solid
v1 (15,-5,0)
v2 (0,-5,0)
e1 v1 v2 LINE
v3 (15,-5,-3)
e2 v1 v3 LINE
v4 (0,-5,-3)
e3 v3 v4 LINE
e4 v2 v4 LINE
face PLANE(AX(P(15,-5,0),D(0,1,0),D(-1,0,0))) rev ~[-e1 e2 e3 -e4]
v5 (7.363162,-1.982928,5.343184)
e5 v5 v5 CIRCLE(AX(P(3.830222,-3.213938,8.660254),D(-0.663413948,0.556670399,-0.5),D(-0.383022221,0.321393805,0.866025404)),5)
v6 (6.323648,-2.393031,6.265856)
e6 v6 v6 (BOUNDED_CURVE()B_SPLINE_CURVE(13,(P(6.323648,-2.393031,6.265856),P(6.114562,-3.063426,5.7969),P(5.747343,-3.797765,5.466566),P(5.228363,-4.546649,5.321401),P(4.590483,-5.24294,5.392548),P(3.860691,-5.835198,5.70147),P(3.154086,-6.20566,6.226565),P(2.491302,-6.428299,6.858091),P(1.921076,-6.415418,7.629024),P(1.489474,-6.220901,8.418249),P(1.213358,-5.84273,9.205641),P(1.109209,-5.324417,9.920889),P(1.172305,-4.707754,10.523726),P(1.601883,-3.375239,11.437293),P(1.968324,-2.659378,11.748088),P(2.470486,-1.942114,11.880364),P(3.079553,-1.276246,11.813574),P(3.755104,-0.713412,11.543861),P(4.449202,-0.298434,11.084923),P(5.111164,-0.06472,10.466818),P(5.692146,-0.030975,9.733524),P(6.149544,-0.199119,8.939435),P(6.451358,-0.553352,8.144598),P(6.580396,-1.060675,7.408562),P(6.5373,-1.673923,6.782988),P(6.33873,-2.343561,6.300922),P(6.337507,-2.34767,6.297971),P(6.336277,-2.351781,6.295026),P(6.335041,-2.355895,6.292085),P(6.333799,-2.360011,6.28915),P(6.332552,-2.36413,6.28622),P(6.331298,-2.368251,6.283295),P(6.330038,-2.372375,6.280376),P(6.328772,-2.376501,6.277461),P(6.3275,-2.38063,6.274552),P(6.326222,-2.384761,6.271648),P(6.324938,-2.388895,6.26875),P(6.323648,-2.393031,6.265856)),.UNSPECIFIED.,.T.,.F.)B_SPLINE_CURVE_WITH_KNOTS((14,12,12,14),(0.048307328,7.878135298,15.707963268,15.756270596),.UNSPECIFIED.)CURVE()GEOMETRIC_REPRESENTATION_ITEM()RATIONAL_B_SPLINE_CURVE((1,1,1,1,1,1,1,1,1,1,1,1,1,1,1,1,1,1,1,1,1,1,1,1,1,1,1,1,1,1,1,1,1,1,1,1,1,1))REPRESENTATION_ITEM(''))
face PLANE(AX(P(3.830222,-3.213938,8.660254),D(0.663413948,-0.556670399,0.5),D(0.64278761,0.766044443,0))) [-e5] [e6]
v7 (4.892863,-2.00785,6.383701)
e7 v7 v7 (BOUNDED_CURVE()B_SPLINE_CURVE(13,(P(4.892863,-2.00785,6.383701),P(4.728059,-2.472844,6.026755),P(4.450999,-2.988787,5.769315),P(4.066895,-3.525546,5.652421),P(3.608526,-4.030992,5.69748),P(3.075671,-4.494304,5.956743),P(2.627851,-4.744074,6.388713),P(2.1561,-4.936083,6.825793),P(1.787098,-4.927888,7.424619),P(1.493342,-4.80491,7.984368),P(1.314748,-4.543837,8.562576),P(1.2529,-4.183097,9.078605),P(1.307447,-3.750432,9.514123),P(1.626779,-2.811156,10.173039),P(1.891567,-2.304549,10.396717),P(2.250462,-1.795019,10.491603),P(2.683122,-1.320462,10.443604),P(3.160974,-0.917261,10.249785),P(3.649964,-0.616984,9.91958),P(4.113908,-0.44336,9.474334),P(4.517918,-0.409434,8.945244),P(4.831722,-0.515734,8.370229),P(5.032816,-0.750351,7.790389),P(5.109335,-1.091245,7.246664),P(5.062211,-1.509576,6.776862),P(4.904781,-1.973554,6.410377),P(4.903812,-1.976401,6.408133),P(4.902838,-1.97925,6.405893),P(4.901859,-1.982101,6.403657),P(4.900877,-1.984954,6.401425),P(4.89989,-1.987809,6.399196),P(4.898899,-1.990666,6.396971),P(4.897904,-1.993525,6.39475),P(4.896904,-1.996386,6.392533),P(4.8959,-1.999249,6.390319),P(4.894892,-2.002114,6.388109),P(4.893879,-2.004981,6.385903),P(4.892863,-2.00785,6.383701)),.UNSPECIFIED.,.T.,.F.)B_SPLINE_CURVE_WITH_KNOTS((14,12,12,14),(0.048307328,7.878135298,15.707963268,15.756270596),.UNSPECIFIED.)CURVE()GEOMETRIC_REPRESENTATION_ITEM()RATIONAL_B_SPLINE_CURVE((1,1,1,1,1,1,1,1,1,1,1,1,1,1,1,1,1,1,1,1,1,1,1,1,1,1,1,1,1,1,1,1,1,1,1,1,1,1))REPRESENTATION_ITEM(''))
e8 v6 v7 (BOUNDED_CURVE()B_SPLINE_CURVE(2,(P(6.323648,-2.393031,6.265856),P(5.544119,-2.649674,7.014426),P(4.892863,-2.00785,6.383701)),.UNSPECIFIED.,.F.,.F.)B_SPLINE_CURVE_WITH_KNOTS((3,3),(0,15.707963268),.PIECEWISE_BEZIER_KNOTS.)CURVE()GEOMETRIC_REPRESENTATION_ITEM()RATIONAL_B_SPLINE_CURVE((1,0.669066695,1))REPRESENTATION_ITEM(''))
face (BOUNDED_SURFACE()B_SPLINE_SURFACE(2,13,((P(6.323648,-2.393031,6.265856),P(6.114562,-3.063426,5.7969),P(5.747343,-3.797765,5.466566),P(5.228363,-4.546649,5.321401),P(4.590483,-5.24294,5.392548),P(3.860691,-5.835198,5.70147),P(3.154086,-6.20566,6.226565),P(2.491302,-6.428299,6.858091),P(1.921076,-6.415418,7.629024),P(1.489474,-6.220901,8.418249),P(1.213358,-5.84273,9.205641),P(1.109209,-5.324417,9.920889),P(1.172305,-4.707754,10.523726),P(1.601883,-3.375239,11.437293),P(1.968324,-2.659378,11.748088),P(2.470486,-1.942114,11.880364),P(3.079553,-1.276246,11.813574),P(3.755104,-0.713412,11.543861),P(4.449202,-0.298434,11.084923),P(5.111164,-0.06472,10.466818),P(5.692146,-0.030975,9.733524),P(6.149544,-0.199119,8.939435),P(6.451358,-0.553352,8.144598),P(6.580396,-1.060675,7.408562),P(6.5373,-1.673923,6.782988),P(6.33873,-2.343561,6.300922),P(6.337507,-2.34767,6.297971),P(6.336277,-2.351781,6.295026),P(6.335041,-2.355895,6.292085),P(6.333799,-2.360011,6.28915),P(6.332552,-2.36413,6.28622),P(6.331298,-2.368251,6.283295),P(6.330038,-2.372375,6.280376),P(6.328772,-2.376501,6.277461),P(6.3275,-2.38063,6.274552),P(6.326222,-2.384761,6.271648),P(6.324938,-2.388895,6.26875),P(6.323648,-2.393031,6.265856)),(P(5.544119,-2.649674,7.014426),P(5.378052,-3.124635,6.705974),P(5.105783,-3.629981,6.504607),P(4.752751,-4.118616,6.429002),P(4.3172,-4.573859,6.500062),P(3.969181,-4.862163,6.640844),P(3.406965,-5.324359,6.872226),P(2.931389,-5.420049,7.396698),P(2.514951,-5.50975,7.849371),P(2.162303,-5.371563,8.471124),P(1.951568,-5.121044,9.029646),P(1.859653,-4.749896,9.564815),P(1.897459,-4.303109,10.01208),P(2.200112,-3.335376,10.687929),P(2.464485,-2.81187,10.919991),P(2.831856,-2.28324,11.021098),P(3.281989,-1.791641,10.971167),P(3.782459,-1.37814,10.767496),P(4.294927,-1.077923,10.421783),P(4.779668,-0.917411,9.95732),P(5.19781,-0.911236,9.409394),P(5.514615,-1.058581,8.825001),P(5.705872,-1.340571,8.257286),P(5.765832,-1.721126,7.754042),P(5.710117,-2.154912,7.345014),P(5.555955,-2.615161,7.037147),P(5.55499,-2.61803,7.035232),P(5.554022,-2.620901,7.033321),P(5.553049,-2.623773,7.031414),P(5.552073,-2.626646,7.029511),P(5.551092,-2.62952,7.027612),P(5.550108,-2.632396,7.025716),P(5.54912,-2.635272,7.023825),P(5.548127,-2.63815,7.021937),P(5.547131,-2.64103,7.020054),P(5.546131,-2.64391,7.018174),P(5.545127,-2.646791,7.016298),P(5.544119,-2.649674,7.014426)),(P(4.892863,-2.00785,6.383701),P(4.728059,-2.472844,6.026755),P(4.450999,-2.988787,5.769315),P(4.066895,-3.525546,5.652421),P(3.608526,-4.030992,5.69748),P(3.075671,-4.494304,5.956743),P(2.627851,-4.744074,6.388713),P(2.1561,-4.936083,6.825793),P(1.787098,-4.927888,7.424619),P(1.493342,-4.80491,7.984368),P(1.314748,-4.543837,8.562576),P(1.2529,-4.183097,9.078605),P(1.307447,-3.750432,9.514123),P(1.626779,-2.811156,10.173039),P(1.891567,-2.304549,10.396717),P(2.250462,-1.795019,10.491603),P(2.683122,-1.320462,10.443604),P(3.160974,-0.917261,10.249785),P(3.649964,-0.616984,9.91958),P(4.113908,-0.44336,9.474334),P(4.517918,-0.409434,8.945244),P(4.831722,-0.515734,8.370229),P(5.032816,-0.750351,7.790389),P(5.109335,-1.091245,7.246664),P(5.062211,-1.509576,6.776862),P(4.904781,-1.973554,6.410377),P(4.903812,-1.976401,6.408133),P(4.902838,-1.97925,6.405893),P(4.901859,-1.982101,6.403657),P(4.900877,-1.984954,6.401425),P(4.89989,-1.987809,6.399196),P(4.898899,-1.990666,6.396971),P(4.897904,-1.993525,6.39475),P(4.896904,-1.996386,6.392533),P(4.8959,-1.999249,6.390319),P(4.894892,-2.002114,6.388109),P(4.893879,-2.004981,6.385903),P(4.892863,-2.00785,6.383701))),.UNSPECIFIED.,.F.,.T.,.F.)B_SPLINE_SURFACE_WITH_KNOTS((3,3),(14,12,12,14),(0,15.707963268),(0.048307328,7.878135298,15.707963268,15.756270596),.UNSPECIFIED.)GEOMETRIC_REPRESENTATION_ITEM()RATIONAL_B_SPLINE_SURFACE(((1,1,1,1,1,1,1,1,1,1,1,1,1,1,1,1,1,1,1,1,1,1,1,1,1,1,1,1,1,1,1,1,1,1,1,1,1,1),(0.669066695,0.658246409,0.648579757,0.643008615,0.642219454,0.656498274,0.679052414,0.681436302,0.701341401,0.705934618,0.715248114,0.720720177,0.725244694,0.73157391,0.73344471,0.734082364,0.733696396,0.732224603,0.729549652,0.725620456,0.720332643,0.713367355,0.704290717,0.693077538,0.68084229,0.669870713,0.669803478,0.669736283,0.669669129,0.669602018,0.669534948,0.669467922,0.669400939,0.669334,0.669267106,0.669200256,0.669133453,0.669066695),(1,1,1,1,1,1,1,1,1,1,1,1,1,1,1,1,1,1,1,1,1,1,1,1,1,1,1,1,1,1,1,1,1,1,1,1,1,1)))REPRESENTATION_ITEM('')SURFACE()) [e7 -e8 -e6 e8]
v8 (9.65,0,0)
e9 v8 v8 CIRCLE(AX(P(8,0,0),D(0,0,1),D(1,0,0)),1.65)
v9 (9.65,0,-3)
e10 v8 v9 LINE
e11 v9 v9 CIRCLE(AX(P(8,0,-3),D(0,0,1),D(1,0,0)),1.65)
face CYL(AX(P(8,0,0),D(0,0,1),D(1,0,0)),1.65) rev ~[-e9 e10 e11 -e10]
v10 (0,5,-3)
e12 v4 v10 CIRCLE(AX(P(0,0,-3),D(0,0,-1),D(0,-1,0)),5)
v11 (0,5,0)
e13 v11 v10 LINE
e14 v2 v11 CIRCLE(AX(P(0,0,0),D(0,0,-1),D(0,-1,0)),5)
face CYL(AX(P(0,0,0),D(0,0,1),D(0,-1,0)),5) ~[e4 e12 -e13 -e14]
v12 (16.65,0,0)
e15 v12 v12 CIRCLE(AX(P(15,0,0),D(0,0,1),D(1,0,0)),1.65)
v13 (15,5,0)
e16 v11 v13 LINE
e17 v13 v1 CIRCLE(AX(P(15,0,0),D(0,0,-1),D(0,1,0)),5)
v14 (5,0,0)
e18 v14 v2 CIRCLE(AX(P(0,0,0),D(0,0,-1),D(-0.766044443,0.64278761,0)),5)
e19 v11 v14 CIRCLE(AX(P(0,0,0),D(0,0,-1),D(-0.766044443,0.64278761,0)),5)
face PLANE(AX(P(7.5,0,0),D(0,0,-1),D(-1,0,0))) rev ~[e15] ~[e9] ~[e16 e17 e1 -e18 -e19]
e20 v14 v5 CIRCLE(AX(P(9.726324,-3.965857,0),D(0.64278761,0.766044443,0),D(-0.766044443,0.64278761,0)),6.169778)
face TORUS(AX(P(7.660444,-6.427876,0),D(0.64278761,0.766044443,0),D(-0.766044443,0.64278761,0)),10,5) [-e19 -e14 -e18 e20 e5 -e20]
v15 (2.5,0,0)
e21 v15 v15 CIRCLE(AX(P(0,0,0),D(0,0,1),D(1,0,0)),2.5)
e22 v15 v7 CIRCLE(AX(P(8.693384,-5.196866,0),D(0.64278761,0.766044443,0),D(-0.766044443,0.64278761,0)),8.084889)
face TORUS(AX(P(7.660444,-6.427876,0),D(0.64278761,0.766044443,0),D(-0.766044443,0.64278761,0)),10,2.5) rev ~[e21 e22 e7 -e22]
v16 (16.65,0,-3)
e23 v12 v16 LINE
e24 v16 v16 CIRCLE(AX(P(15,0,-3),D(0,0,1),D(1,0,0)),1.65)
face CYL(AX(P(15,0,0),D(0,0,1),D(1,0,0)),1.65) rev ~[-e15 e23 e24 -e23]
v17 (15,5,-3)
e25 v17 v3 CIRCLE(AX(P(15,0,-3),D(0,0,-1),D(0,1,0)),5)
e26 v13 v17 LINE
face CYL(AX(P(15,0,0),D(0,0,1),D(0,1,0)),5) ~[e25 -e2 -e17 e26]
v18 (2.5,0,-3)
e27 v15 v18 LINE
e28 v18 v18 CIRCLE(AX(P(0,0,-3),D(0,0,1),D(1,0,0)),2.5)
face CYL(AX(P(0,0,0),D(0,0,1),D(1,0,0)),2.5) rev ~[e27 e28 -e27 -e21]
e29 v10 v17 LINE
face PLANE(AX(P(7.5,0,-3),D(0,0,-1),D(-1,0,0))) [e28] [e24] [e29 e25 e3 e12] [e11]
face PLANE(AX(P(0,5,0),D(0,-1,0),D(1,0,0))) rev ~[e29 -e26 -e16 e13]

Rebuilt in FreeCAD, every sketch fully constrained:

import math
import FreeCAD as App
import Part
import Sketcher

V = App.Vector


def edges_at(feature, points):
    """Names of the edges that pass closest to the given points."""
    edges = feature.Shape.Edges
    near = lambda p: min(range(len(edges)), key=lambda i: edges[i].distToShape(Part.Vertex(*p))[0])
    return sorted({f"Edge{near(p) + 1}" for p in points})

doc = App.newDocument("Part")
body = doc.addObject("PartDesign::Body", "Body")

# Sketch on XY plane
sketch1 = body.newObject("Sketcher::SketchObject", "Sketch")
sketch1.AttachmentSupport = (doc.getObject("XY_Plane"), [""])
sketch1.MapMode = "FlatFace"
sketch1.addGeometry(Part.LineSegment(V(15, 5, 0), V(0, 5, 0)), False)
sketch1.addGeometry(Part.ArcOfCircle(Part.Circle(V(0, 0, 0), V(0, 0, 1), 5), math.radians(90), math.radians(270)), False)
sketch1.addGeometry(Part.LineSegment(V(0, -5, 0), V(15, -5, 0)), False)
sketch1.addGeometry(Part.ArcOfCircle(Part.Circle(V(15, 0, 0), V(0, 0, 1), 5), math.radians(-90), math.radians(90)), False)
sketch1.addGeometry(Part.Circle(V(0, 0, 0), V(0, 0, 1), 2.5), False)
sketch1.addConstraint(Sketcher.Constraint("Tangent", 0, 2, 1, 1))
sketch1.addConstraint(Sketcher.Constraint("Tangent", 1, 2, 2, 1))
sketch1.addConstraint(Sketcher.Constraint("Tangent", 2, 2, 3, 1))
sketch1.addConstraint(Sketcher.Constraint("Tangent", 3, 2, 0, 1))
sketch1.addConstraint(Sketcher.Constraint("Horizontal", 0))
sketch1.addConstraint(Sketcher.Constraint("Horizontal", 2))
sketch1.addConstraint(Sketcher.Constraint("Coincident", 1, 3, -1, 1))
sketch1.addConstraint(Sketcher.Constraint("Coincident", 4, 3, -1, 1))
sketch1.addConstraint(Sketcher.Constraint("Diameter", 4, 5.0))
sketch1.addConstraint(Sketcher.Constraint("Radius", 1, 5.0))
sketch1.addConstraint(Sketcher.Constraint("DistanceX", 0, 2, 0, 1, 15.0))
pad1 = body.newObject("PartDesign::Pad", "Pad")
pad1.Profile = sketch1
pad1.Length = 3
pad1.Reversed = True

# Sketch on XY plane
sketch2 = body.newObject("Sketcher::SketchObject", "Sketch001")
sketch2.AttachmentSupport = (doc.getObject("XY_Plane"), [""])
sketch2.MapMode = "FlatFace"
sketch2.addGeometry(Part.Circle(V(0, 0, 0), V(0, 0, 1), 5), False)
sketch2.addGeometry(Part.Circle(V(0, 0, 0), V(0, 0, 1), 2.5), False)
sketch2.addConstraint(Sketcher.Constraint("Coincident", 0, 3, -1, 1))
sketch2.addConstraint(Sketcher.Constraint("Coincident", 1, 3, -1, 1))
sketch2.addConstraint(Sketcher.Constraint("Diameter", 0, 10.0))
sketch2.addConstraint(Sketcher.Constraint("Diameter", 1, 5.0))

# Sketch on an angled plane
sketch3 = body.newObject("Sketcher::SketchObject", "Sketch002")
sketch3.Placement = App.Placement(V(0, 0, 0), App.Rotation(V(0.766044443, -0.64278761, 0), V(0, 0, 1), V(-0.64278761, -0.766044443, 0), "ZXY"))
sketch3.addGeometry(Part.ArcOfCircle(Part.Circle(V(10, 0, 0), V(0, 0, 1), 10), math.radians(120), math.radians(180)), False)
sketch3.addConstraint(Sketcher.Constraint("Coincident", 0, 2, -1, 1))
sketch3.addConstraint(Sketcher.Constraint("PointOnObject", 0, 3, -1))
sketch3.addConstraint(Sketcher.Constraint("Radius", 0, 10.0))
sketch3.addConstraint(Sketcher.Constraint("DistanceX", -1, 1, 0, 1, 5.0))
doc.recompute()

additivepipe = body.newObject("PartDesign::AdditivePipe", "AdditivePipe")
additivepipe.Profile = sketch2
additivepipe.Spine = (sketch3, ["Edge1"])

# Sketch on XY plane
sketch4 = body.newObject("Sketcher::SketchObject", "Sketch003")
sketch4.AttachmentSupport = (doc.getObject("XY_Plane"), [""])
sketch4.MapMode = "FlatFace"
sketch4.addGeometry(Part.Circle(V(8, 0, 0), V(0, 0, 1), 1.6), False)
sketch4.addGeometry(Part.Circle(V(15, 0, 0), V(0, 0, 1), 1.6), False)
sketch4.addConstraint(Sketcher.Constraint("Equal", 0, 1))
sketch4.addConstraint(Sketcher.Constraint("PointOnObject", 0, 3, -1))
sketch4.addConstraint(Sketcher.Constraint("PointOnObject", 1, 3, -1))
sketch4.addConstraint(Sketcher.Constraint("Diameter", 0, 3.3))
sketch4.addConstraint(Sketcher.Constraint("DistanceX", -1, 1, 0, 3, 8.0))
sketch4.addConstraint(Sketcher.Constraint("DistanceX", -1, 1, 1, 3, 15.0))
pocket1 = body.newObject("PartDesign::Pocket", "Pocket")
pocket1.Profile = sketch4
pocket1.Type = "ThroughAll"
doc.recompute()

fillet = body.newObject("PartDesign::Fillet", "Fillet")
fillet.Base = (pocket1, edges_at(pocket1, [(2.064, -3.829, 10.319)]))
fillet.Radius = 1

doc.recompute()
